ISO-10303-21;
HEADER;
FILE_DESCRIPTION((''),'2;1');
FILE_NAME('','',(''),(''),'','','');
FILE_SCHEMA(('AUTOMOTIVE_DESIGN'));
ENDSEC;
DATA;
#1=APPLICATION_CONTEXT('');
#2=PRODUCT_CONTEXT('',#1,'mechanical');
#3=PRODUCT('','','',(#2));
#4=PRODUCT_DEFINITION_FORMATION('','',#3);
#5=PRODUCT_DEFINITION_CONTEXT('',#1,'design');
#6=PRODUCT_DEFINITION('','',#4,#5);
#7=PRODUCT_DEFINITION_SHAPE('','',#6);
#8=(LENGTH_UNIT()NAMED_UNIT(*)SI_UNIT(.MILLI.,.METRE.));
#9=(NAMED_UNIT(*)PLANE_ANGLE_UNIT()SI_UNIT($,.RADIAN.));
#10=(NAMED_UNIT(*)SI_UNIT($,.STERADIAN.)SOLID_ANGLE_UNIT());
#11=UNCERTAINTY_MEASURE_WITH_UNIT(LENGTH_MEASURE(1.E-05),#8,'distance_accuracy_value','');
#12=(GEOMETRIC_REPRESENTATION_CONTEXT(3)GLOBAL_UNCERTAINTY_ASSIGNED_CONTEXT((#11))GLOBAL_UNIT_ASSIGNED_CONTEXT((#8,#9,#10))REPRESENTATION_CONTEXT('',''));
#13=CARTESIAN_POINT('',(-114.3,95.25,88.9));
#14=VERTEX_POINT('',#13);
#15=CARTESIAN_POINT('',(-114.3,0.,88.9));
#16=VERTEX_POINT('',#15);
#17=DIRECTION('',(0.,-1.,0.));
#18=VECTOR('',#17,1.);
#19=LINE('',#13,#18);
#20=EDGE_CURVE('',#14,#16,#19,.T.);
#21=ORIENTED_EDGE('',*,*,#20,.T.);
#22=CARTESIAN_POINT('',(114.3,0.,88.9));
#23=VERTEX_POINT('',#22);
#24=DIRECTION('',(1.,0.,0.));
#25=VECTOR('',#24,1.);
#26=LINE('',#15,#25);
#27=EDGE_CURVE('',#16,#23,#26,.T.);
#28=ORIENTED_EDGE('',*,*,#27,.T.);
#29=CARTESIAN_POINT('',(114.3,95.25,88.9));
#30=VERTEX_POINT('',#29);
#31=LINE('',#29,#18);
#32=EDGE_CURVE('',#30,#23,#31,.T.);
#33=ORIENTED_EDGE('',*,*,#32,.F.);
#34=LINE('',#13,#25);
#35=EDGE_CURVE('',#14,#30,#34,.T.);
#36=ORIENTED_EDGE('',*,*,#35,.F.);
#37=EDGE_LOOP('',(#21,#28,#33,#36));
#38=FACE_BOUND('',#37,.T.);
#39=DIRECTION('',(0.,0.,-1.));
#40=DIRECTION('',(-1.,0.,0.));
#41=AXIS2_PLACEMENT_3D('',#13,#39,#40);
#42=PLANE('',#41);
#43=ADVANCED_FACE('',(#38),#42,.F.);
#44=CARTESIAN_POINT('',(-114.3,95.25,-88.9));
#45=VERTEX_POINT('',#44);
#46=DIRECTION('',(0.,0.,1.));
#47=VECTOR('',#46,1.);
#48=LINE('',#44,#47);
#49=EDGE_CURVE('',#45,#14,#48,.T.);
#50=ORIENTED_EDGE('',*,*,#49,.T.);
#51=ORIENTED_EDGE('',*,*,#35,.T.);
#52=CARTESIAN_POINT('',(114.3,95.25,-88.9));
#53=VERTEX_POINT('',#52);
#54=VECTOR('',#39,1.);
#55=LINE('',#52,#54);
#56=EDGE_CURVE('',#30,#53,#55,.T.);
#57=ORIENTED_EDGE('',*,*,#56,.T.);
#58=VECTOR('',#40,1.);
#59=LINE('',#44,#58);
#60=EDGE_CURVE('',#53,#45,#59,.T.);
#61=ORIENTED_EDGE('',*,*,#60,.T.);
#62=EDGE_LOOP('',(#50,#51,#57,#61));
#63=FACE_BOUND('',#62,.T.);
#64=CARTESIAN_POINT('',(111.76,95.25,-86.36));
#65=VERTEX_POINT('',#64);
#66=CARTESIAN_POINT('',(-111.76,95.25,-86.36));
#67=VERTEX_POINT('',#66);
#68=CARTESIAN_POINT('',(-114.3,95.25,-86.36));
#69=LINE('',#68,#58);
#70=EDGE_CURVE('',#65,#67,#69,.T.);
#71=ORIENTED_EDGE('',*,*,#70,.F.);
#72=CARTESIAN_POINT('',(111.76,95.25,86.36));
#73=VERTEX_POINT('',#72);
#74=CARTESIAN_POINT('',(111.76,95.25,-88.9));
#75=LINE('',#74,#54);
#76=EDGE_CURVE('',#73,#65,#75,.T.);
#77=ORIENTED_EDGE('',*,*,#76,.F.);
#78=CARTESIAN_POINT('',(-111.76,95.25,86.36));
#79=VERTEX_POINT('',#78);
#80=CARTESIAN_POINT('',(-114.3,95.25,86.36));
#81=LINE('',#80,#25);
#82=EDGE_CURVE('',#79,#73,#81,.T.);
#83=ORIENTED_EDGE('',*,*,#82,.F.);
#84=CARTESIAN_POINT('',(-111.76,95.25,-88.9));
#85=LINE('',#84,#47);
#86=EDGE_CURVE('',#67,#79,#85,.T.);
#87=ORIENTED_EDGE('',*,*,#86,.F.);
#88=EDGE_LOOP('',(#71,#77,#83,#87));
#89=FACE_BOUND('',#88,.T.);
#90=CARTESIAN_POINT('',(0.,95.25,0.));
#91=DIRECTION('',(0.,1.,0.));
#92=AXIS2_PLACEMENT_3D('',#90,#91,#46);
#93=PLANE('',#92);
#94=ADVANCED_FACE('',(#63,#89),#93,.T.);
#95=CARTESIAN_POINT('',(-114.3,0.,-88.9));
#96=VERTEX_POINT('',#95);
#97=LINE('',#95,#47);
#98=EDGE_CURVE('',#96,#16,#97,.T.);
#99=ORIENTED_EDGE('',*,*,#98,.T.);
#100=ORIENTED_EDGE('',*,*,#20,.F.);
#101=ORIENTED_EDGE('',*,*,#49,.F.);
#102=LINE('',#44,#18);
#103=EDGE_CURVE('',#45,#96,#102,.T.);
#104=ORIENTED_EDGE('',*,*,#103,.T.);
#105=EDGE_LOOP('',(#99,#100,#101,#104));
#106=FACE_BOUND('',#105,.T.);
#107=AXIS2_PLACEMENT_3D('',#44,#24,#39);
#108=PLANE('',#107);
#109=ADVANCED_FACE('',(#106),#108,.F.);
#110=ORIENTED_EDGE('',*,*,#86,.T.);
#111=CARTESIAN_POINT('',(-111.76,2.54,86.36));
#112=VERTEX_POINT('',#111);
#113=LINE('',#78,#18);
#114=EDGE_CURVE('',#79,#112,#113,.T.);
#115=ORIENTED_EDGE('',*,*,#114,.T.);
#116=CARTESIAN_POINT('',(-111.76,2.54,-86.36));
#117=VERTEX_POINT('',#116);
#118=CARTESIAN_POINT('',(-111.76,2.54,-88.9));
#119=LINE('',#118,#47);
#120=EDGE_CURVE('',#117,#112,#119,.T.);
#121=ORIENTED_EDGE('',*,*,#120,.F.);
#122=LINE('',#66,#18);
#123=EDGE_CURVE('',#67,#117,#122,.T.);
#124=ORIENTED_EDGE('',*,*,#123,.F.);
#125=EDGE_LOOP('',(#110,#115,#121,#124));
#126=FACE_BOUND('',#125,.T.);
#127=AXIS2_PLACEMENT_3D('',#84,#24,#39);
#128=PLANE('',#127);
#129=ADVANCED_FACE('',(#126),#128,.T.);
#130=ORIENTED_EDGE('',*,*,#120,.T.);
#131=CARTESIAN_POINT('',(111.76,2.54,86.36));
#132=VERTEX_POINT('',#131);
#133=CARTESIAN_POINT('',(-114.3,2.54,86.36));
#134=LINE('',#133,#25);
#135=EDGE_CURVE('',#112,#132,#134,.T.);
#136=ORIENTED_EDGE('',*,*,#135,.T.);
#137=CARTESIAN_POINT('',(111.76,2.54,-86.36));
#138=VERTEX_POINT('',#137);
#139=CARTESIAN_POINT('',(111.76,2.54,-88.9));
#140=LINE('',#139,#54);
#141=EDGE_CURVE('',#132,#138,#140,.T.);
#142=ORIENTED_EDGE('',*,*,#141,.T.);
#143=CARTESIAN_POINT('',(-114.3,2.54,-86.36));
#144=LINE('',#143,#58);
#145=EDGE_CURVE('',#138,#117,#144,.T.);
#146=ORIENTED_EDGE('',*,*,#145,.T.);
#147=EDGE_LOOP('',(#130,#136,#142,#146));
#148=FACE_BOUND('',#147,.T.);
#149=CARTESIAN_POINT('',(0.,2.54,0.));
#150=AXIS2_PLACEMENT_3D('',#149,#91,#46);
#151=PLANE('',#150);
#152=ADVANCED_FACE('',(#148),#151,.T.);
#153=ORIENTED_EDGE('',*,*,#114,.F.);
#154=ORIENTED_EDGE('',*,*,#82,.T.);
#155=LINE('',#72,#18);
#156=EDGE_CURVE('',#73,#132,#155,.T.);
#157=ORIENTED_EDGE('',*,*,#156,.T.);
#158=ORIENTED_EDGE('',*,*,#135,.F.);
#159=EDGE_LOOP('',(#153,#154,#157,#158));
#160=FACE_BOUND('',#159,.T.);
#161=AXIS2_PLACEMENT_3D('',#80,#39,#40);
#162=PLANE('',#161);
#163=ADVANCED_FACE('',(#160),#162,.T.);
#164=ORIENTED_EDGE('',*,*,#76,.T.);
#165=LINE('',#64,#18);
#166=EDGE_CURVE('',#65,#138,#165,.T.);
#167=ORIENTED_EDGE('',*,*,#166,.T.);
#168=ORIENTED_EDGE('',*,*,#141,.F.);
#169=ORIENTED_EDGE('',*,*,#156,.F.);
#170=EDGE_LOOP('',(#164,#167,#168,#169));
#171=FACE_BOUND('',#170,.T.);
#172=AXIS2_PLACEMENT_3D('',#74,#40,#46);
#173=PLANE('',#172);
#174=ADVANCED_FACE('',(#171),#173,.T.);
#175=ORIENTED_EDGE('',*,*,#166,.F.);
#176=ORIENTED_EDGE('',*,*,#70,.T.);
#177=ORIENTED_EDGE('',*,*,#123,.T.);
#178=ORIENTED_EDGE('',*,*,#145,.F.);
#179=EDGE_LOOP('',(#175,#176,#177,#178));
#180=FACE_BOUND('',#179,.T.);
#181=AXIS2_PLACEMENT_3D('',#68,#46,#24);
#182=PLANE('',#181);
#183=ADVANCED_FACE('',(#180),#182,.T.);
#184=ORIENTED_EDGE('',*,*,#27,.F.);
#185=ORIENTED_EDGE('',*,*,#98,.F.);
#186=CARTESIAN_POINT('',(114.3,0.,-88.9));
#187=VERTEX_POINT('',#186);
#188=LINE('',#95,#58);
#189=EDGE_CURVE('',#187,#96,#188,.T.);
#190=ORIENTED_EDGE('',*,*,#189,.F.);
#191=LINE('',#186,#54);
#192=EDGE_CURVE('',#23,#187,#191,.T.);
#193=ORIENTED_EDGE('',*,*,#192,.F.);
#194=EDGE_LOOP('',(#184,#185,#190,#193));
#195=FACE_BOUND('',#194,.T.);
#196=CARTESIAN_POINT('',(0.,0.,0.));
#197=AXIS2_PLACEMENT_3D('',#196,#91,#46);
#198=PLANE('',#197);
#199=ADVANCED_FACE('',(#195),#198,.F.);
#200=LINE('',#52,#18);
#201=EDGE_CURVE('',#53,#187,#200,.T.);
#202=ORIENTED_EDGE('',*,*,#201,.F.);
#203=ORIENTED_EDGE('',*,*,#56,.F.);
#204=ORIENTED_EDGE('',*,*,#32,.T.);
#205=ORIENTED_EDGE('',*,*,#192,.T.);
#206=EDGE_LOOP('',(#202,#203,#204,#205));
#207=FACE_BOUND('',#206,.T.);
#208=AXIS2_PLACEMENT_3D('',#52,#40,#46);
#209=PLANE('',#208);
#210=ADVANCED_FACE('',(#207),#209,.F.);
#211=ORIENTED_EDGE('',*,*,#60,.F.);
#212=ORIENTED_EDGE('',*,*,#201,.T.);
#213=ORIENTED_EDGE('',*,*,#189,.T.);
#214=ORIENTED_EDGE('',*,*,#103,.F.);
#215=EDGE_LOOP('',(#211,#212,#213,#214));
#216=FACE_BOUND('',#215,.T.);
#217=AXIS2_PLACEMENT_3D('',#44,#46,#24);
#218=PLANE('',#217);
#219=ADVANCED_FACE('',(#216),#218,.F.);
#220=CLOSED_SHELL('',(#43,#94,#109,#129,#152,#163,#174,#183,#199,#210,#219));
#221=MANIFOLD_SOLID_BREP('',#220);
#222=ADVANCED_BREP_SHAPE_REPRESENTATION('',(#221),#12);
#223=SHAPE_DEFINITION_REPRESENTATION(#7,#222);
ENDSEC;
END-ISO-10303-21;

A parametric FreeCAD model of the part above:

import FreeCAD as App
import Part
import Sketcher
from FreeCAD import Vector
Q = App.Units.Quantity


def faces_at(feature, points):
    """Names of the faces that lie closest to the given points."""
    faces = feature.Shape.Faces
    near = lambda p: min(range(len(faces)), key=lambda i: faces[i].distToShape(Part.Vertex(*p))[0])
    return sorted({f"Face{near(p) + 1}" for p in points})

doc = App.newDocument("Part")
params = doc.addObject("Spreadsheet::Sheet", "Params")
for row, (alias, value) in enumerate([
    ("sketch1_width", "9 in"),
    ("sketch1_height", "7 in"),
    ("pad1_length", "3.75 in"),
    ("thickness_wall", "0.1 in"),
], start=1):
    params.set(f"A{row}", alias)
    params.set(f"B{row}", "=" + value)
    params.setAlias(f"B{row}", alias)

body = doc.addObject("PartDesign::Body", "Body")

sketch1 = body.newObject("Sketcher::SketchObject", "Sketch")
sketch1.AttachmentSupport = (doc.getObject("XZ_Plane"), [""])
sketch1.MapMode = "FlatFace"
sketch1.addGeometry([
    Part.LineSegment(Vector(-114, -89, 0), Vector(-114, 89, 0)),
    Part.LineSegment(Vector(-114, 89, 0), Vector(114, 89, 0)),
    Part.LineSegment(Vector(114, 89, 0), Vector(114, -89, 0)),
    Part.LineSegment(Vector(114, -89, 0), Vector(-114, -89, 0)),
], False)
sketch1.addConstraint([
    Sketcher.Constraint("Coincident", 0, 2, 1, 1),
    Sketcher.Constraint("Coincident", 1, 2, 2, 1),
    Sketcher.Constraint("Coincident", 2, 2, 3, 1),
    Sketcher.Constraint("Coincident", 3, 2, 0, 1),
    Sketcher.Constraint("Vertical", 0),
    Sketcher.Constraint("Horizontal", 1),
    Sketcher.Constraint("Vertical", 2),
    Sketcher.Constraint("Horizontal", 3),
    Sketcher.Constraint("Symmetric", 0, 2, 2, 2, -1, 1),
    Sketcher.Constraint("DistanceX", 1, 1, 1, 2, Q("9 in")),
    Sketcher.Constraint("DistanceY", 0, 1, 0, 2, Q("7 in")),
])
sketch1.setExpression("Constraints[9]", "Params.sketch1_width")
sketch1.setExpression("Constraints[10]", "Params.sketch1_height")
pad1 = body.newObject("PartDesign::Pad", "Pad")
pad1.Profile = sketch1
pad1.setExpression("Length", "Params.pad1_length")
pad1.Reversed = True
doc.recompute()

thickness = body.newObject("PartDesign::Thickness", "Thickness")
thickness.Base = (pad1, faces_at(pad1, [(0, 95.25, 0)]))
thickness.setExpression("Value", "Params.thickness_wall")
thickness.Reversed = True
thickness.Join = "Intersection"

doc.recompute()
